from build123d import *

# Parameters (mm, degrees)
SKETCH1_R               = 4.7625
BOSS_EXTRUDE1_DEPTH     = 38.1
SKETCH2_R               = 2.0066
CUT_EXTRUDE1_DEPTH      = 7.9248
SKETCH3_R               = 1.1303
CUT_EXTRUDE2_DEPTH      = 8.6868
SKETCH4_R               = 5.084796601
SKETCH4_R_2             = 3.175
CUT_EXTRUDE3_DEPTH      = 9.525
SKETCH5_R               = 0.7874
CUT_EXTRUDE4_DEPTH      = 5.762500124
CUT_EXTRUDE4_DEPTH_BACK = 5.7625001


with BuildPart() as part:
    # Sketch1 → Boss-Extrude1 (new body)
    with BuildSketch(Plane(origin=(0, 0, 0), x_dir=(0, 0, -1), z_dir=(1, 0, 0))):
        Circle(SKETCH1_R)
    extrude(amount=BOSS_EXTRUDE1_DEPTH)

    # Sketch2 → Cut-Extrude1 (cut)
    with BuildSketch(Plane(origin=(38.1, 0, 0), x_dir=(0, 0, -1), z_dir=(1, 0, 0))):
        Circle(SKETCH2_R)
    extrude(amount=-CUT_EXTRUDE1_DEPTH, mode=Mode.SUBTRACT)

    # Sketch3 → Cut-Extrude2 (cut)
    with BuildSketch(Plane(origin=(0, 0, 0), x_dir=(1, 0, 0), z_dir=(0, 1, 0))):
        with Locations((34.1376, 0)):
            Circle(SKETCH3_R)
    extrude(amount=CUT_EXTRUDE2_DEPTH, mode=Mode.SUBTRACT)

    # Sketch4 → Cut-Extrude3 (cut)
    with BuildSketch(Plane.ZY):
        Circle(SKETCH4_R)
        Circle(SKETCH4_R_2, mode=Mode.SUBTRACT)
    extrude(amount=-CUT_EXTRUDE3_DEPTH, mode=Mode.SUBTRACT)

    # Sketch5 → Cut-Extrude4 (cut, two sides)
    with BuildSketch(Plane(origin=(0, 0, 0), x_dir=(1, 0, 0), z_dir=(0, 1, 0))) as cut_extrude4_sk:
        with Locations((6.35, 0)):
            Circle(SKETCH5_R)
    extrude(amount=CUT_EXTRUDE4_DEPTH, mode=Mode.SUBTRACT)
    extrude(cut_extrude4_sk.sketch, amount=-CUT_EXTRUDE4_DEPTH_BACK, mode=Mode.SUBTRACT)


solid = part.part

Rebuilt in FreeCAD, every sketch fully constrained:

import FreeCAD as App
import Part
import Sketcher
Q = App.Units.Quantity

doc = App.newDocument("Part")
body = doc.addObject("PartDesign::Body", "Body")

sketch1 = doc.addObject("Sketcher::SketchObject", "Sketch")
body.addObject(sketch1)
sketch1.AttachmentSupport = (doc.YZ_Plane, [""])
sketch1.MapMode = "FlatFace"
sketch1.addGeometry(Part.Circle(App.Vector(0, 0, 0), App.Vector(0, 0, 1), 4.7625), False)
sketch1.addConstraint([
    Sketcher.Constraint("Coincident", 0, 3, -1, 1),
    Sketcher.Constraint("Diameter", 0, Q("0.375 in")),
])
pad1 = doc.addObject("PartDesign::Pad", "Pad")
body.addObject(pad1)
pad1.Profile = sketch1
pad1.Length = Q("1.5 in")

sketch2 = doc.addObject("Sketcher::SketchObject", "Sketch001")
body.addObject(sketch2)
sketch2.AttachmentSupport = (doc.YZ_Plane, [""])
sketch2.MapMode = "FlatFace"
sketch2.AttachmentOffset = App.Placement(App.Vector(0, 0, 1.5 * 25.4), App.Rotation())
sketch2.addGeometry(Part.Circle(App.Vector(0, 0, 0), App.Vector(0, 0, 1), 2.0066), False)
sketch2.addConstraint([
    Sketcher.Constraint("Coincident", 0, 3, -1, 1),
    Sketcher.Constraint("Diameter", 0, Q("0.158 in")),
])
pocket1 = doc.addObject("PartDesign::Pocket", "Pocket")
body.addObject(pocket1)
pocket1.Profile = sketch2
pocket1.Length = Q("0.312 in")

sketch3 = doc.addObject("Sketcher::SketchObject", "Sketch002")
body.addObject(sketch3)
sketch3.AttachmentSupport = (doc.XZ_Plane, [""])
sketch3.MapMode = "FlatFace"
sketch3.addGeometry(Part.Circle(App.Vector(34.1376, 0, 0), App.Vector(0, 0, 1), 1.1303), False)
sketch3.addConstraint([
    Sketcher.Constraint("PointOnObject", 0, 3, -1),
    Sketcher.Constraint("Diameter", 0, Q("0.089 in")),
    Sketcher.Constraint("DistanceX", -1, 1, 0, 3, Q("1.344 in")),
])
pocket2 = doc.addObject("PartDesign::Pocket", "Pocket001")
body.addObject(pocket2)
pocket2.Profile = sketch3
pocket2.Length = Q("0.342 in")

sketch4 = doc.addObject("Sketcher::SketchObject", "Sketch003")
body.addObject(sketch4)
sketch4.AttachmentSupport = (doc.YZ_Plane, [""])
sketch4.MapMode = "FlatFace"
sketch4.addGeometry([
    Part.Circle(App.Vector(0, 0, 0), App.Vector(0, 0, 1), 5.084797),
    Part.Circle(App.Vector(0, 0, 0), App.Vector(0, 0, 1), 3.175),
], False)
sketch4.addConstraint([
    Sketcher.Constraint("Coincident", 0, 3, -1, 1),
    Sketcher.Constraint("Coincident", 1, 3, -1, 1),
    Sketcher.Constraint("Diameter", 1, Q("0.25 in")),
    Sketcher.Constraint("Diameter", 0, Q("10.169593 mm")),
])
pocket3 = doc.addObject("PartDesign::Pocket", "Pocket002")
body.addObject(pocket3)
pocket3.Profile = sketch4
pocket3.Length = Q("0.375 in")
pocket3.Reversed = True

sketch5 = doc.addObject("Sketcher::SketchObject", "Sketch004")
body.addObject(sketch5)
sketch5.AttachmentSupport = (doc.XZ_Plane, [""])
sketch5.MapMode = "FlatFace"
sketch5.addGeometry(Part.Circle(App.Vector(6.35, 0, 0), App.Vector(0, 0, 1), 0.7874), False)
sketch5.addConstraint([
    Sketcher.Constraint("PointOnObject", 0, 3, -1),
    Sketcher.Constraint("Diameter", 0, Q("0.062 in")),
    Sketcher.Constraint("DistanceX", -1, 1, 0, 3, Q("0.25 in")),
])
pocket4 = doc.addObject("PartDesign::Pocket", "Pocket003")
body.addObject(pocket4)
pocket4.Profile = sketch5
pocket4.Type = "ThroughAll"
pocket4.Midplane = True

doc.recompute()
